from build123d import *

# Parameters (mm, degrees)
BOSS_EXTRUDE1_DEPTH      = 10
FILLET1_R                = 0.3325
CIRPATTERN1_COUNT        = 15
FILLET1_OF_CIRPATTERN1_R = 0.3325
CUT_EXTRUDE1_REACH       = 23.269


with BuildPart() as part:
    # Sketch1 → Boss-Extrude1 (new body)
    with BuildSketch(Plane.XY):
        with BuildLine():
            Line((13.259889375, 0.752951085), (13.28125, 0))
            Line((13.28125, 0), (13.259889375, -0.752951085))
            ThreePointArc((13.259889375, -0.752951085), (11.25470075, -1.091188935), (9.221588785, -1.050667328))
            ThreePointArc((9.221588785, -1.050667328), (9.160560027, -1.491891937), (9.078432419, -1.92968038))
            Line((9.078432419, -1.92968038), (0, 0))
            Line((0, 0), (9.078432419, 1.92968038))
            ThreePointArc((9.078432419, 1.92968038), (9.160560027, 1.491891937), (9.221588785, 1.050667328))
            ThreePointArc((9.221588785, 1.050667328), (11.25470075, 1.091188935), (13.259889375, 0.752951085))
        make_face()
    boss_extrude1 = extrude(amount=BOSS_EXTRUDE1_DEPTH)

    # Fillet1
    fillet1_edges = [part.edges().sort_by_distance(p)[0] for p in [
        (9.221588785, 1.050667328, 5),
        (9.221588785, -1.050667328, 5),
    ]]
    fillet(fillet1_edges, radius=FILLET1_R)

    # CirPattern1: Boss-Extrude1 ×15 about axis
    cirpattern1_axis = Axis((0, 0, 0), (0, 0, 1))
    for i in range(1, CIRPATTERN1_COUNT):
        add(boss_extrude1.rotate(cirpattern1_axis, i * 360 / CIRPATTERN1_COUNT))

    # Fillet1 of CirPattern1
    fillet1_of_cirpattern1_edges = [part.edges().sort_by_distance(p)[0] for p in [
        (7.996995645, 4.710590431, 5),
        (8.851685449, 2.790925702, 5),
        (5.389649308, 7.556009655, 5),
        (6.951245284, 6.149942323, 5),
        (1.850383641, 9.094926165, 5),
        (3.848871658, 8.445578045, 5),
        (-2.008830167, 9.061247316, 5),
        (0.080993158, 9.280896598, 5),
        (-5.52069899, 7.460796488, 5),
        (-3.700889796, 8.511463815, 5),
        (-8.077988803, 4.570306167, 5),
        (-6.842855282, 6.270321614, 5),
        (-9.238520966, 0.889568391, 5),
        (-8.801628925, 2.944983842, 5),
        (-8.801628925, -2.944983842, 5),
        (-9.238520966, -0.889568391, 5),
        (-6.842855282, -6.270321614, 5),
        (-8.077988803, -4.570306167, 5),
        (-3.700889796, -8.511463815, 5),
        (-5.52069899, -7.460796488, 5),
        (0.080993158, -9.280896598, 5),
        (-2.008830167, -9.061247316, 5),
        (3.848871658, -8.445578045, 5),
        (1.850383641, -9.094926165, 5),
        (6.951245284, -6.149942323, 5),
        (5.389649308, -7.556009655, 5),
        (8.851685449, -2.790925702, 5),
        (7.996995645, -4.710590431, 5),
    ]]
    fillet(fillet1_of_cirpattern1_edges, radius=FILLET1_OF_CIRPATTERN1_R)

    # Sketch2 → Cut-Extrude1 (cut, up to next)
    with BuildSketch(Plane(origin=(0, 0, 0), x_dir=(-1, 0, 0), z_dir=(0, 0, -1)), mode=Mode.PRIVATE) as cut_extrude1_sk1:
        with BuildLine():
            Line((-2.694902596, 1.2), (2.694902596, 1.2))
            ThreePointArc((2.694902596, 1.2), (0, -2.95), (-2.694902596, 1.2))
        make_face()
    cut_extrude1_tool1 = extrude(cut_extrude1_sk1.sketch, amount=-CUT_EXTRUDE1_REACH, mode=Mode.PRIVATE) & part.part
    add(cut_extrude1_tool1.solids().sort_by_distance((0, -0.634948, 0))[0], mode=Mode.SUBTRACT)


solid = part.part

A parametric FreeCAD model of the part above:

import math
import FreeCAD as App
import Part
import Sketcher
from FreeCAD import Vector
Q = App.Units.Quantity


def edges_at(feature, points):
    """Names of the edges that pass closest to the given points."""
    edges = feature.Shape.Edges
    near = lambda p: min(range(len(edges)), key=lambda i: edges[i].distToShape(Part.Vertex(*p))[0])
    return sorted({f"Edge{near(p) + 1}" for p in points})

doc = App.newDocument("Part")
body = doc.addObject("PartDesign::Body", "Body")

sketch1 = body.newObject("Sketcher::SketchObject", "Sketch")
sketch1.AttachmentSupport = (doc.getObject("XY_Plane"), [""])
sketch1.MapMode = "FlatFace"
sketch1.addGeometry([
    Part.LineSegment(Vector(13.3, 0, 0), Vector(13.3, 0.8, 0)),
    Part.ArcOfCircle(Part.Circle(Vector(10.5, -9.8, 0), Vector(0, 0, 1), 10.9), math.radians(75), math.radians(97)),
    Part.ArcOfCircle(Part.Circle(Vector(0, 0, 0), Vector(0, 0, 1), 9.3), math.radians(6.5), math.radians(12)),
    Part.LineSegment(Vector(9.1, 1.9, 0), Vector(0, 0, 0)),
    Part.LineSegment(Vector(0, 0, 0), Vector(9.1, -1.9, 0)),
    Part.ArcOfCircle(Part.Circle(Vector(0, 0, 0), Vector(0, 0, 1), 9.3), math.radians(-12), math.radians(-6.5)),
    Part.ArcOfCircle(Part.Circle(Vector(10.5, 9.8, 0), Vector(0, 0, 1), 10.9), math.radians(-97), math.radians(-75)),
    Part.LineSegment(Vector(13.3, -0.8, 0), Vector(13.3, 0, 0)),
], False)
sketch1.addConstraint([
    Sketcher.Constraint("Coincident", 0, 2, 1, 1),
    Sketcher.Constraint("Coincident", 1, 2, 2, 1),
    Sketcher.Constraint("Coincident", 2, 2, 3, 1),
    Sketcher.Constraint("Coincident", 3, 2, 4, 1),
    Sketcher.Constraint("Coincident", 4, 2, 5, 1),
    Sketcher.Constraint("Coincident", 5, 2, 6, 1),
    Sketcher.Constraint("Coincident", 6, 2, 7, 1),
    Sketcher.Constraint("Coincident", 7, 2, 0, 1),
    Sketcher.Constraint("Coincident", 2, 3, -1, 1),
    Sketcher.Constraint("Coincident", 5, 3, -1, 1),
    Sketcher.Constraint("Coincident", 3, 2, -1, 1),
    Sketcher.Constraint("Equal", 2, 5),
    Sketcher.Constraint("Equal", 1, 6),
    Sketcher.Constraint("Symmetric", 1, 3, 6, 3, -1),
    Sketcher.Constraint("PointOnObject", 7, 2, -1),
    Sketcher.Constraint("Vertical", 2, 2, 4, 2),
    Sketcher.Constraint("Vertical", 0, 2, 6, 2),
    Sketcher.Constraint("Angle", 3, Q("-168 deg")),
    Sketcher.Constraint("Radius", 1, 10.888162),
    Sketcher.Constraint("Radius", 2, 9.28125),
    Sketcher.Constraint("DistanceX", 1, 2, 0, 2, 4.038301),
    Sketcher.Constraint("DistanceX", -1, 1, 0, 2, 13.259889),
    Sketcher.Constraint("DistanceY", -1, 1, 0, 2, 0.752951),
    Sketcher.Constraint("DistanceX", -1, 1, 7, 2, 13.28125),
])
pad1 = body.newObject("PartDesign::Pad", "Pad")
pad1.Profile = sketch1
pad1.Length = 10
doc.recompute()

fillet = body.newObject("PartDesign::Fillet", "Fillet")
fillet.Base = (pad1, edges_at(pad1, [(9.222, 1.051, 5), (9.222, -1.051, 5)]))
fillet.Radius = 0.3325
doc.recompute()

polarpattern = body.newObject("PartDesign::PolarPattern", "PolarPattern")
polarpattern.Originals = [pad1]
polarpattern.Axis = (doc.getObject("Z_Axis"), [""])
polarpattern.Angle = 360
polarpattern.Occurrences = 15
body.Tip = polarpattern
doc.recompute()

fillet2 = body.newObject("PartDesign::Fillet", "Fillet001")
fillet2.Base = (polarpattern, edges_at(polarpattern, [
    (7.997, 4.711, 5),
    (8.852, 2.791, 5),
    (5.39, 7.556, 5),
    (6.951, 6.15, 5),
    (1.85, 9.095, 5),
    (3.849, 8.446, 5),
    (-2.009, 9.061, 5),
    (0.081, 9.281, 5),
    (-5.521, 7.461, 5),
    (-3.701, 8.511, 5),
    (-8.078, 4.57, 5),
    (-6.843, 6.27, 5),
    (-9.239, 0.89, 5),
    (-8.802, 2.945, 5),
    (-8.802, -2.945, 5),
    (-9.239, -0.89, 5),
    (-6.843, -6.27, 5),
    (-8.078, -4.57, 5),
    (-3.701, -8.511, 5),
    (-5.521, -7.461, 5),
    (0.081, -9.281, 5),
    (-2.009, -9.061, 5),
    (3.849, -8.446, 5),
    (1.85, -9.095, 5),
    (6.951, -6.15, 5),
    (5.39, -7.556, 5),
    (8.852, -2.791, 5),
    (7.997, -4.711, 5),
]))
fillet2.Radius = 0.3325

sketch2 = body.newObject("Sketcher::SketchObject", "Sketch001")
sketch2.AttachmentSupport = (doc.getObject("XY_Plane"), [""])
sketch2.MapMode = "FlatFace"
sketch2.addGeometry([
    Part.LineSegment(Vector(-2.7, 1.2, 0), Vector(2.7, 1.2, 0)),
    Part.ArcOfCircle(Part.Circle(Vector(0, 0, 0), Vector(0, 0, 1), 3), math.radians(156), math.radians(384)),
], False)
sketch2.addConstraint([
    Sketcher.Constraint("Coincident", 0, 1, 1, 1),
    Sketcher.Constraint("Coincident", 1, 2, 0, 2),
    Sketcher.Constraint("Horizontal", 0),
    Sketcher.Constraint("Coincident", 1, 3, -1, 1),
    Sketcher.Constraint("Radius", 1, 2.95),
    Sketcher.Constraint("DistanceY", -1, 1, 0, 1, 1.2),
])
pocket1 = body.newObject("PartDesign::Pocket", "Pocket")
pocket1.Profile = sketch2
pocket1.Type = "UpToFirst"
pocket1.Reversed = True

doc.recompute()
